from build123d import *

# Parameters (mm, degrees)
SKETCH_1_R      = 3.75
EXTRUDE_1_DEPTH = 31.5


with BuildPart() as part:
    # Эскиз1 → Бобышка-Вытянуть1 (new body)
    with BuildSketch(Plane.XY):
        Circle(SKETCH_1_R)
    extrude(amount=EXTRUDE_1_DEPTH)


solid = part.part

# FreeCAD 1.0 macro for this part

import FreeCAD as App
import Part
import Sketcher

doc = App.newDocument("Part")
body = doc.addObject("PartDesign::Body", "Body")

sketch1 = doc.addObject("Sketcher::SketchObject", "Sketch")
body.addObject(sketch1)
sketch1.AttachmentSupport = (doc.XY_Plane, [""])
sketch1.MapMode = "FlatFace"
sketch1.addGeometry(Part.Circle(App.Vector(0, 0, 0), App.Vector(0, 0, 1), 3.8), False)
sketch1.addConstraint(Sketcher.Constraint("Coincident", 0, 3, -1, 1))
sketch1.addConstraint(Sketcher.Constraint("Diameter", 0, 7.5))
pad1 = doc.addObject("PartDesign::Pad", "Pad")
body.addObject(pad1)
pad1.Profile = sketch1
pad1.Length = 31.5

doc.recompute()
